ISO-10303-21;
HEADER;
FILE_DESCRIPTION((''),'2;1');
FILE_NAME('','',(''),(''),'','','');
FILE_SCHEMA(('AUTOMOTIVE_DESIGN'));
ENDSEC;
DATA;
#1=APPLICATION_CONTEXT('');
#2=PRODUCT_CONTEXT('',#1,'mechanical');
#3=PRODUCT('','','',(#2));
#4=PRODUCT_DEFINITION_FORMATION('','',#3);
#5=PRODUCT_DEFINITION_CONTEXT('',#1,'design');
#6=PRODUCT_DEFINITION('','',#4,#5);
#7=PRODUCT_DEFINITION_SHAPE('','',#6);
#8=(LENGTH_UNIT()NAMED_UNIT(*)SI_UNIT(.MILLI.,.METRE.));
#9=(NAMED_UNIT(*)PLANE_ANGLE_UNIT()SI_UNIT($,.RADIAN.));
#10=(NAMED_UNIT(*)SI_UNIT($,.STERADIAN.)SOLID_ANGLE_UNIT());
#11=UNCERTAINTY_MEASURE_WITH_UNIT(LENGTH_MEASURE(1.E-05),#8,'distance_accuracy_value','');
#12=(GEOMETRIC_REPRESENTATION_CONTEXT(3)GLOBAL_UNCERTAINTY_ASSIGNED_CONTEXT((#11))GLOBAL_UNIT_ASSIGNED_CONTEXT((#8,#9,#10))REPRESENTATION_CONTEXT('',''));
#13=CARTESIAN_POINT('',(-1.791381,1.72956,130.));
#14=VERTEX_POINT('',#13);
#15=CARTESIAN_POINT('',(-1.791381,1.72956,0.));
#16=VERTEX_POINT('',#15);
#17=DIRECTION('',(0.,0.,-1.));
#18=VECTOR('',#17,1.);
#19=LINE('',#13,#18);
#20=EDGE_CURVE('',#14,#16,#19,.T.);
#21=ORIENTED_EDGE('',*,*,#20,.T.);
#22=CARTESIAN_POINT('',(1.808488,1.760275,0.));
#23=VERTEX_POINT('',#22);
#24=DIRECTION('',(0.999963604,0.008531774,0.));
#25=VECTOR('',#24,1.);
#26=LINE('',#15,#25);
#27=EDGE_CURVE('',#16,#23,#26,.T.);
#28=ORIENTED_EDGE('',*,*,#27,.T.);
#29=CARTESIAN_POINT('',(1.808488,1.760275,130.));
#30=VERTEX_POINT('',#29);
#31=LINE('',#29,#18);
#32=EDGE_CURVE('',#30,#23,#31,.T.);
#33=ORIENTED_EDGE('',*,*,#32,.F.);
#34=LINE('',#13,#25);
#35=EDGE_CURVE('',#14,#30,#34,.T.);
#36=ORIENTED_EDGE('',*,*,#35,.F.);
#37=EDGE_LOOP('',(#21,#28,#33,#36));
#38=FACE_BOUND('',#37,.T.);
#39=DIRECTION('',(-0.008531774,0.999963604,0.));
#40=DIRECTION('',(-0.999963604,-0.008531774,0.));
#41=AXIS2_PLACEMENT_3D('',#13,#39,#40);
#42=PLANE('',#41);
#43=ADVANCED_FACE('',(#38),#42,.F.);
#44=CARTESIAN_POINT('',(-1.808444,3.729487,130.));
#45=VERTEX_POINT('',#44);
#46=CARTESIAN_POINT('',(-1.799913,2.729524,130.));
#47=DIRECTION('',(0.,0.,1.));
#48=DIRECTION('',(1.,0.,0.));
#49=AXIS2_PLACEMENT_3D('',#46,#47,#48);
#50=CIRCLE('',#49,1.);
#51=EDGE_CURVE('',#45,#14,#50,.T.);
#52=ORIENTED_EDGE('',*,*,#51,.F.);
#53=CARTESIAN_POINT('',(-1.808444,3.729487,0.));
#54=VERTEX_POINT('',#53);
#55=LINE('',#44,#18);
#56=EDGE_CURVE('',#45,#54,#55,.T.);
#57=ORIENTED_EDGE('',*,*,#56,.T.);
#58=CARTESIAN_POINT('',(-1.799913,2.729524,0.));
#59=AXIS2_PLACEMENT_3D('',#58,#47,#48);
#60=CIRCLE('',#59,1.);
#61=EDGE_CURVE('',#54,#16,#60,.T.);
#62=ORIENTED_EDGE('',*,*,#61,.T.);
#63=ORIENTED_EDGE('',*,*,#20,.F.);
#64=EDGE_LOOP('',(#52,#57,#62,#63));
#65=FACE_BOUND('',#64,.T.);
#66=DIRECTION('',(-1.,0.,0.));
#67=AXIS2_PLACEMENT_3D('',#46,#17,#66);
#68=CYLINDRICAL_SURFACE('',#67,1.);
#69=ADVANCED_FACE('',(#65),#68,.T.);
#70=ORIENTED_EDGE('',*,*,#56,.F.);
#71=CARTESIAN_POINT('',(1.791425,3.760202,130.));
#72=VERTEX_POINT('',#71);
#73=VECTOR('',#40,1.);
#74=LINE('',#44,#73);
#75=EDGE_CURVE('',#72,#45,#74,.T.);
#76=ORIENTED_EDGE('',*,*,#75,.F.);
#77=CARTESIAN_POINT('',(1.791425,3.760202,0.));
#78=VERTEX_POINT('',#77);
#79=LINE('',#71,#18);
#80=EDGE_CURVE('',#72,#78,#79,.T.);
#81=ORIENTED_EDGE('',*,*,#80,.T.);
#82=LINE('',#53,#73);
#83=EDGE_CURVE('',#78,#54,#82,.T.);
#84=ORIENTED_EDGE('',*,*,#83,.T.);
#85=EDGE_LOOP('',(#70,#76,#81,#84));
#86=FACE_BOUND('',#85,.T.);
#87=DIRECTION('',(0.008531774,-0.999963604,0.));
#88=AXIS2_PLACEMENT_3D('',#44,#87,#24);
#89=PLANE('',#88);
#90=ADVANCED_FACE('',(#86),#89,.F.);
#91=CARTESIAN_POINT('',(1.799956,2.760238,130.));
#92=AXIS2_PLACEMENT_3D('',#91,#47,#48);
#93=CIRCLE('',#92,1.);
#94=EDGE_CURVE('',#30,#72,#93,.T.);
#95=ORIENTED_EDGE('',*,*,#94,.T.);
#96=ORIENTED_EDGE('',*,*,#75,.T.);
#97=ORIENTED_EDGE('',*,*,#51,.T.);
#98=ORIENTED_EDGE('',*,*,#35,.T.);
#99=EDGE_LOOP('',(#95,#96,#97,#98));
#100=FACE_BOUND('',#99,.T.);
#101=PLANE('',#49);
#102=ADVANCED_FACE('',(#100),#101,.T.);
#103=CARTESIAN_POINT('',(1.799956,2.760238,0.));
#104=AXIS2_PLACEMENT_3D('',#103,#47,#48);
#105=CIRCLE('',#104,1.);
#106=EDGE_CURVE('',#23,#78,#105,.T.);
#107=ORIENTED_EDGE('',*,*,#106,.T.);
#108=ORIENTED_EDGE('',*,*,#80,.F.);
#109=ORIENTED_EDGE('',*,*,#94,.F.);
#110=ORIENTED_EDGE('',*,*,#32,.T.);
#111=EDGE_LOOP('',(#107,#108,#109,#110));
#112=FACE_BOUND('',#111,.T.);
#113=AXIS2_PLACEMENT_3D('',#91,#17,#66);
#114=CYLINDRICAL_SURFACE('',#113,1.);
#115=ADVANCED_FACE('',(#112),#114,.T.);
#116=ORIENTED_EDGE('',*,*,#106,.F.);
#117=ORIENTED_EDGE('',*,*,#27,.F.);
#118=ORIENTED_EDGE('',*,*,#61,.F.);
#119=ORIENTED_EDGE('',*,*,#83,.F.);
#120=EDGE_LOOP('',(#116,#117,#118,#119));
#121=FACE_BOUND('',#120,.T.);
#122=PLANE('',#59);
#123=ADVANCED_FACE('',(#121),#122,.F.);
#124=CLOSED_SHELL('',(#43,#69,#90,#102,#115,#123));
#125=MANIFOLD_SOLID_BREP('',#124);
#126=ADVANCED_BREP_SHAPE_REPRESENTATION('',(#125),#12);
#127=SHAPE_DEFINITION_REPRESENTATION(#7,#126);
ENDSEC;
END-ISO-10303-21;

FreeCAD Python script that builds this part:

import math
import FreeCAD as App
import Part
import Sketcher

V = App.Vector

doc = App.newDocument("Part")
body = doc.addObject("PartDesign::Body", "Body")

# Sketch on XY plane
sketch1 = doc.addObject("Sketcher::SketchObject", "Sketch")
body.addObject(sketch1)
sketch1.AttachmentSupport = (doc.XY_Plane, [""])
sketch1.MapMode = "FlatFace"
sketch1.addGeometry(Part.LineSegment(V(1.8, 3.8, 0), V(-1.8, 3.7, 0)), False)
sketch1.addGeometry(Part.ArcOfCircle(Part.Circle(V(-1.8, 2.7, 0), V(0, 0, 1), 1), math.radians(90), math.radians(270)), False)
sketch1.addGeometry(Part.LineSegment(V(-1.8, 1.7, 0), V(1.8, 1.8, 0)), False)
sketch1.addGeometry(Part.ArcOfCircle(Part.Circle(V(1.8, 2.8, 0), V(0, 0, 1), 1), math.radians(-90), math.radians(90)), False)
sketch1.addConstraint(Sketcher.Constraint("Tangent", 0, 2, 1, 1))
sketch1.addConstraint(Sketcher.Constraint("Tangent", 1, 2, 2, 1))
sketch1.addConstraint(Sketcher.Constraint("Tangent", 2, 2, 3, 1))
sketch1.addConstraint(Sketcher.Constraint("Tangent", 3, 2, 0, 1))
sketch1.addConstraint(Sketcher.Constraint("Equal", 1, 3))
sketch1.addConstraint(Sketcher.Constraint("Radius", 1, 1.0))
sketch1.addConstraint(Sketcher.Constraint("Distance", 0, 3.6))
sketch1.addConstraint(Sketcher.Constraint("DistanceY", -1, 1, 3, 2, 3.760202))
sketch1.addConstraint(Sketcher.Constraint("DistanceX", 0, 2, 3, 3, 3.608401))
sketch1.addConstraint(Sketcher.Constraint("DistanceX", 1, 2, -1, 1, 1.791381))
pad1 = doc.addObject("PartDesign::Pad", "Pad")
body.addObject(pad1)
pad1.Profile = sketch1
pad1.Length = 130

doc.recompute()
